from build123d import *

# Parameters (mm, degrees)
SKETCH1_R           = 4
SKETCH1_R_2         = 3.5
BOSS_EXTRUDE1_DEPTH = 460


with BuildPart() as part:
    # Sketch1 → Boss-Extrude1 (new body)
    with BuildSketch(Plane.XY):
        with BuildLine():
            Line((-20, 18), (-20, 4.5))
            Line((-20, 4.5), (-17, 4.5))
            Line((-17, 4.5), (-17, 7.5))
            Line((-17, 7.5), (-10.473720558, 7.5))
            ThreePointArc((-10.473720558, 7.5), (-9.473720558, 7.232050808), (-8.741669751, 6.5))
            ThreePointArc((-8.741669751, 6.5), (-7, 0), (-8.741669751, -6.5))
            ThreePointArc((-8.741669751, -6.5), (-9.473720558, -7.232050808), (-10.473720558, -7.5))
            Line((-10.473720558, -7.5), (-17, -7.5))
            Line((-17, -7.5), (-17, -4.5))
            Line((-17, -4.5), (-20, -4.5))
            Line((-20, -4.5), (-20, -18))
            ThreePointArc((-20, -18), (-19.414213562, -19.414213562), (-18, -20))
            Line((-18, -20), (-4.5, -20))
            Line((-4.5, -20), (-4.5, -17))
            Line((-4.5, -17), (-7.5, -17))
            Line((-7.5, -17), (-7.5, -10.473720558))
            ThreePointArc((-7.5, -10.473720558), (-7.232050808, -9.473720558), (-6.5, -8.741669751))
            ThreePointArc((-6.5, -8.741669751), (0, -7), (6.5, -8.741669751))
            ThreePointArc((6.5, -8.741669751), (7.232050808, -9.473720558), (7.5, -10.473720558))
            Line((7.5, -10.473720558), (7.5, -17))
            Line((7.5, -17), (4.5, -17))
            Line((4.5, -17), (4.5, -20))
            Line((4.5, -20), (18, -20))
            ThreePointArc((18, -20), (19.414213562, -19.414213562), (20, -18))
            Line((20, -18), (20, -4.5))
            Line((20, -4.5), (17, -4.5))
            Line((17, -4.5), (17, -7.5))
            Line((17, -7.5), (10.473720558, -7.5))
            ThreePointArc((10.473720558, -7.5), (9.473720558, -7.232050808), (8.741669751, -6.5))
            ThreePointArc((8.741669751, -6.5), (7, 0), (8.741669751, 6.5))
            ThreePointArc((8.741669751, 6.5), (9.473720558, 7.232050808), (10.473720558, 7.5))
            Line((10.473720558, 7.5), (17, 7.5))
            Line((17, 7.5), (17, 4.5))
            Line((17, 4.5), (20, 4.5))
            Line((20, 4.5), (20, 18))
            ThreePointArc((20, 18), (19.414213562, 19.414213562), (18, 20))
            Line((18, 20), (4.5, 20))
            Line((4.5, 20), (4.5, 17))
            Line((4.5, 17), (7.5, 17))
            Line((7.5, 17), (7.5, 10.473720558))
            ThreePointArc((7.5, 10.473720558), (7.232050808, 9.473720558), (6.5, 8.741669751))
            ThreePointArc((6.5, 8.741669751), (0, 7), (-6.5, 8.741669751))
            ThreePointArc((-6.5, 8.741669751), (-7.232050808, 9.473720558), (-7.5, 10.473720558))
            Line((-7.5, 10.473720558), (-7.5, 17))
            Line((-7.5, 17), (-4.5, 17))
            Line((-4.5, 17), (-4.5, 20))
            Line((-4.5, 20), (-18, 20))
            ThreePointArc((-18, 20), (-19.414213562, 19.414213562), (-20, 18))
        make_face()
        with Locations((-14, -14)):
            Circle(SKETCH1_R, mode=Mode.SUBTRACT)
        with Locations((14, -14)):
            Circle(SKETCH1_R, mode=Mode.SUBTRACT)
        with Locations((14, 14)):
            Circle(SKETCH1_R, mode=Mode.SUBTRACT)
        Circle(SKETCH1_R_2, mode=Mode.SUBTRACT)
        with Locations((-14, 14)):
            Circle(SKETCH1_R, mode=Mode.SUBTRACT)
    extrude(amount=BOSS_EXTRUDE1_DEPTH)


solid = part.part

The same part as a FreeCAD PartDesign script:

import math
import FreeCAD as App
import Part
import Sketcher
from FreeCAD import Vector
Q = App.Units.Quantity

doc = App.newDocument("Part")
body = doc.addObject("PartDesign::Body", "Body")

sketch1 = doc.addObject("Sketcher::SketchObject", "Sketch")
body.addObject(sketch1)
sketch1.AttachmentSupport = (doc.XY_Plane, [""])
sketch1.MapMode = "FlatFace"
sketch1.addGeometry(Part.LineSegment(Vector(-20, 18, 0), Vector(-20, 4.5, 0)), False)
sketch1.addGeometry(Part.LineSegment(Vector(-20, 4.5, 0), Vector(-17, 4.5, 0)), False)
sketch1.addGeometry(Part.LineSegment(Vector(-17, 4.5, 0), Vector(-17, 7.5, 0)), False)
sketch1.addGeometry(Part.LineSegment(Vector(-17, 7.5, 0), Vector(-10.5, 7.5, 0)), False)
sketch1.addGeometry(Part.ArcOfCircle(Part.Circle(Vector(-10.5, 5.5, 0), Vector(0, 0, 1), 2), math.radians(30), math.radians(90)), False)
sketch1.addGeometry(Part.ArcOfCircle(Part.Circle(Vector(-20, 0, 0), Vector(0, 0, 1), 13), math.radians(-30), math.radians(30)), False)
sketch1.addGeometry(Part.ArcOfCircle(Part.Circle(Vector(-10.5, -5.5, 0), Vector(0, 0, 1), 2), math.radians(-90), math.radians(-30)), False)
sketch1.addGeometry(Part.LineSegment(Vector(-10.5, -7.5, 0), Vector(-17, -7.5, 0)), False)
sketch1.addGeometry(Part.LineSegment(Vector(-17, -7.5, 0), Vector(-17, -4.5, 0)), False)
sketch1.addGeometry(Part.LineSegment(Vector(-17, -4.5, 0), Vector(-20, -4.5, 0)), False)
sketch1.addGeometry(Part.LineSegment(Vector(-20, -4.5, 0), Vector(-20, -18, 0)), False)
sketch1.addGeometry(Part.ArcOfCircle(Part.Circle(Vector(-18, -18, 0), Vector(0, 0, 1), 2), math.radians(-180), math.radians(-90)), False)
sketch1.addGeometry(Part.LineSegment(Vector(-18, -20, 0), Vector(-4.5, -20, 0)), False)
sketch1.addGeometry(Part.LineSegment(Vector(-4.5, -20, 0), Vector(-4.5, -17, 0)), False)
sketch1.addGeometry(Part.LineSegment(Vector(-4.5, -17, 0), Vector(-7.5, -17, 0)), False)
sketch1.addGeometry(Part.LineSegment(Vector(-7.5, -17, 0), Vector(-7.5, -10.5, 0)), False)
sketch1.addGeometry(Part.ArcOfCircle(Part.Circle(Vector(-5.5, -10.5, 0), Vector(0, 0, 1), 2), math.radians(120), math.radians(180)), False)
sketch1.addGeometry(Part.ArcOfCircle(Part.Circle(Vector(0, -20, 0), Vector(0, 0, 1), 13), math.radians(60), math.radians(120)), False)
sketch1.addGeometry(Part.ArcOfCircle(Part.Circle(Vector(5.5, -10.5, 0), Vector(0, 0, 1), 2), math.radians(0), math.radians(60)), False)
sketch1.addGeometry(Part.LineSegment(Vector(7.5, -10.5, 0), Vector(7.5, -17, 0)), False)
sketch1.addGeometry(Part.LineSegment(Vector(7.5, -17, 0), Vector(4.5, -17, 0)), False)
sketch1.addGeometry(Part.LineSegment(Vector(4.5, -17, 0), Vector(4.5, -20, 0)), False)
sketch1.addGeometry(Part.LineSegment(Vector(4.5, -20, 0), Vector(18, -20, 0)), False)
sketch1.addGeometry(Part.ArcOfCircle(Part.Circle(Vector(18, -18, 0), Vector(0, 0, 1), 2), math.radians(-90), math.radians(0)), False)
sketch1.addGeometry(Part.LineSegment(Vector(20, -18, 0), Vector(20, -4.5, 0)), False)
sketch1.addGeometry(Part.LineSegment(Vector(20, -4.5, 0), Vector(17, -4.5, 0)), False)
sketch1.addGeometry(Part.LineSegment(Vector(17, -4.5, 0), Vector(17, -7.5, 0)), False)
sketch1.addGeometry(Part.LineSegment(Vector(17, -7.5, 0), Vector(10.5, -7.5, 0)), False)
sketch1.addGeometry(Part.ArcOfCircle(Part.Circle(Vector(10.5, -5.5, 0), Vector(0, 0, 1), 2), math.radians(-150), math.radians(-90)), False)
sketch1.addGeometry(Part.ArcOfCircle(Part.Circle(Vector(20, 0, 0), Vector(0, 0, 1), 13), math.radians(150), math.radians(210)), False)
sketch1.addGeometry(Part.ArcOfCircle(Part.Circle(Vector(10.5, 5.5, 0), Vector(0, 0, 1), 2), math.radians(90), math.radians(150)), False)
sketch1.addGeometry(Part.LineSegment(Vector(10.5, 7.5, 0), Vector(17, 7.5, 0)), False)
sketch1.addGeometry(Part.LineSegment(Vector(17, 7.5, 0), Vector(17, 4.5, 0)), False)
sketch1.addGeometry(Part.LineSegment(Vector(17, 4.5, 0), Vector(20, 4.5, 0)), False)
sketch1.addGeometry(Part.LineSegment(Vector(20, 4.5, 0), Vector(20, 18, 0)), False)
sketch1.addGeometry(Part.ArcOfCircle(Part.Circle(Vector(18, 18, 0), Vector(0, 0, 1), 2), math.radians(0), math.radians(90)), False)
sketch1.addGeometry(Part.LineSegment(Vector(18, 20, 0), Vector(4.5, 20, 0)), False)
sketch1.addGeometry(Part.LineSegment(Vector(4.5, 20, 0), Vector(4.5, 17, 0)), False)
sketch1.addGeometry(Part.LineSegment(Vector(4.5, 17, 0), Vector(7.5, 17, 0)), False)
sketch1.addGeometry(Part.LineSegment(Vector(7.5, 17, 0), Vector(7.5, 10.5, 0)), False)
sketch1.addGeometry(Part.ArcOfCircle(Part.Circle(Vector(5.5, 10.5, 0), Vector(0, 0, 1), 2), math.radians(-60), math.radians(0)), False)
sketch1.addGeometry(Part.ArcOfCircle(Part.Circle(Vector(0, 20, 0), Vector(0, 0, 1), 13), math.radians(-120), math.radians(-60)), False)
sketch1.addGeometry(Part.ArcOfCircle(Part.Circle(Vector(-5.5, 10.5, 0), Vector(0, 0, 1), 2), math.radians(180), math.radians(240)), False)
sketch1.addGeometry(Part.LineSegment(Vector(-7.5, 10.5, 0), Vector(-7.5, 17, 0)), False)
sketch1.addGeometry(Part.LineSegment(Vector(-7.5, 17, 0), Vector(-4.5, 17, 0)), False)
sketch1.addGeometry(Part.LineSegment(Vector(-4.5, 17, 0), Vector(-4.5, 20, 0)), False)
sketch1.addGeometry(Part.LineSegment(Vector(-4.5, 20, 0), Vector(-18, 20, 0)), False)
sketch1.addGeometry(Part.ArcOfCircle(Part.Circle(Vector(-18, 18, 0), Vector(0, 0, 1), 2), math.radians(90), math.radians(180)), False)
sketch1.addGeometry(Part.Circle(Vector(-14, -14, 0), Vector(0, 0, 1), 4), False)
sketch1.addGeometry(Part.Circle(Vector(14, -14, 0), Vector(0, 0, 1), 4), False)
sketch1.addGeometry(Part.Circle(Vector(-14, 14, 0), Vector(0, 0, 1), 4), False)
sketch1.addGeometry(Part.Circle(Vector(0, 0, 0), Vector(0, 0, 1), 3.5), False)
sketch1.addGeometry(Part.Circle(Vector(14, 14, 0), Vector(0, 0, 1), 4), False)
sketch1.addConstraint(Sketcher.Constraint("Coincident", 0, 2, 1, 1))
sketch1.addConstraint(Sketcher.Constraint("Coincident", 1, 2, 2, 1))
sketch1.addConstraint(Sketcher.Constraint("Coincident", 2, 2, 3, 1))
sketch1.addConstraint(Sketcher.Constraint("Tangent", 3, 2, 4, 2))
sketch1.addConstraint(Sketcher.Constraint("Tangent", 4, 1, 5, 2))
sketch1.addConstraint(Sketcher.Constraint("Tangent", 5, 1, 6, 2))
sketch1.addConstraint(Sketcher.Constraint("Tangent", 6, 1, 7, 1))
sketch1.addConstraint(Sketcher.Constraint("Coincident", 7, 2, 8, 1))
sketch1.addConstraint(Sketcher.Constraint("Coincident", 8, 2, 9, 1))
sketch1.addConstraint(Sketcher.Constraint("Coincident", 9, 2, 10, 1))
sketch1.addConstraint(Sketcher.Constraint("Tangent", 10, 2, 11, 1))
sketch1.addConstraint(Sketcher.Constraint("Tangent", 11, 2, 12, 1))
sketch1.addConstraint(Sketcher.Constraint("Coincident", 12, 2, 13, 1))
sketch1.addConstraint(Sketcher.Constraint("Coincident", 13, 2, 14, 1))
sketch1.addConstraint(Sketcher.Constraint("Coincident", 14, 2, 15, 1))
sketch1.addConstraint(Sketcher.Constraint("Tangent", 15, 2, 16, 2))
sketch1.addConstraint(Sketcher.Constraint("Tangent", 16, 1, 17, 2))
sketch1.addConstraint(Sketcher.Constraint("Tangent", 17, 1, 18, 2))
sketch1.addConstraint(Sketcher.Constraint("Tangent", 18, 1, 19, 1))
sketch1.addConstraint(Sketcher.Constraint("Coincident", 19, 2, 20, 1))
sketch1.addConstraint(Sketcher.Constraint("Coincident", 20, 2, 21, 1))
sketch1.addConstraint(Sketcher.Constraint("Coincident", 21, 2, 22, 1))
sketch1.addConstraint(Sketcher.Constraint("Tangent", 22, 2, 23, 1))
sketch1.addConstraint(Sketcher.Constraint("Tangent", 23, 2, 24, 1))
sketch1.addConstraint(Sketcher.Constraint("Coincident", 24, 2, 25, 1))
sketch1.addConstraint(Sketcher.Constraint("Coincident", 25, 2, 26, 1))
sketch1.addConstraint(Sketcher.Constraint("Coincident", 26, 2, 27, 1))
sketch1.addConstraint(Sketcher.Constraint("Tangent", 27, 2, 28, 2))
sketch1.addConstraint(Sketcher.Constraint("Tangent", 28, 1, 29, 2))
sketch1.addConstraint(Sketcher.Constraint("Tangent", 29, 1, 30, 2))
sketch1.addConstraint(Sketcher.Constraint("Tangent", 30, 1, 31, 1))
sketch1.addConstraint(Sketcher.Constraint("Coincident", 31, 2, 32, 1))
sketch1.addConstraint(Sketcher.Constraint("Coincident", 32, 2, 33, 1))
sketch1.addConstraint(Sketcher.Constraint("Coincident", 33, 2, 34, 1))
sketch1.addConstraint(Sketcher.Constraint("Tangent", 34, 2, 35, 1))
sketch1.addConstraint(Sketcher.Constraint("Tangent", 35, 2, 36, 1))
sketch1.addConstraint(Sketcher.Constraint("Coincident", 36, 2, 37, 1))
sketch1.addConstraint(Sketcher.Constraint("Coincident", 37, 2, 38, 1))
sketch1.addConstraint(Sketcher.Constraint("Coincident", 38, 2, 39, 1))
sketch1.addConstraint(Sketcher.Constraint("Tangent", 39, 2, 40, 2))
sketch1.addConstraint(Sketcher.Constraint("Tangent", 40, 1, 41, 2))
sketch1.addConstraint(Sketcher.Constraint("Tangent", 41, 1, 42, 2))
sketch1.addConstraint(Sketcher.Constraint("Tangent", 42, 1, 43, 1))
sketch1.addConstraint(Sketcher.Constraint("Coincident", 43, 2, 44, 1))
sketch1.addConstraint(Sketcher.Constraint("Coincident", 44, 2, 45, 1))
sketch1.addConstraint(Sketcher.Constraint("Coincident", 45, 2, 46, 1))
sketch1.addConstraint(Sketcher.Constraint("Tangent", 46, 2, 47, 1))
sketch1.addConstraint(Sketcher.Constraint("Tangent", 47, 2, 0, 1))
sketch1.addConstraint(Sketcher.Constraint("Vertical", 0))
sketch1.addConstraint(Sketcher.Constraint("Horizontal", 1))
sketch1.addConstraint(Sketcher.Constraint("Vertical", 2))
sketch1.addConstraint(Sketcher.Constraint("Horizontal", 3))
sketch1.addConstraint(Sketcher.Constraint("Horizontal", 7))
sketch1.addConstraint(Sketcher.Constraint("Vertical", 8))
sketch1.addConstraint(Sketcher.Constraint("Horizontal", 9))
sketch1.addConstraint(Sketcher.Constraint("Vertical", 10))
sketch1.addConstraint(Sketcher.Constraint("Horizontal", 12))
sketch1.addConstraint(Sketcher.Constraint("Vertical", 13))
sketch1.addConstraint(Sketcher.Constraint("Horizontal", 14))
sketch1.addConstraint(Sketcher.Constraint("Vertical", 15))
sketch1.addConstraint(Sketcher.Constraint("Vertical", 19))
sketch1.addConstraint(Sketcher.Constraint("Horizontal", 20))
sketch1.addConstraint(Sketcher.Constraint("Vertical", 21))
sketch1.addConstraint(Sketcher.Constraint("Horizontal", 22))
sketch1.addConstraint(Sketcher.Constraint("Vertical", 24))
sketch1.addConstraint(Sketcher.Constraint("Horizontal", 25))
sketch1.addConstraint(Sketcher.Constraint("Vertical", 26))
sketch1.addConstraint(Sketcher.Constraint("Horizontal", 27))
sketch1.addConstraint(Sketcher.Constraint("Horizontal", 31))
sketch1.addConstraint(Sketcher.Constraint("Vertical", 32))
sketch1.addConstraint(Sketcher.Constraint("Horizontal", 33))
sketch1.addConstraint(Sketcher.Constraint("Vertical", 34))
sketch1.addConstraint(Sketcher.Constraint("Horizontal", 36))
sketch1.addConstraint(Sketcher.Constraint("Vertical", 37))
sketch1.addConstraint(Sketcher.Constraint("Horizontal", 38))
sketch1.addConstraint(Sketcher.Constraint("Vertical", 39))
sketch1.addConstraint(Sketcher.Constraint("Vertical", 43))
sketch1.addConstraint(Sketcher.Constraint("Horizontal", 44))
sketch1.addConstraint(Sketcher.Constraint("Vertical", 45))
sketch1.addConstraint(Sketcher.Constraint("Horizontal", 46))
sketch1.addConstraint(Sketcher.Constraint("Coincident", 51, 3, -1, 1))
sketch1.addConstraint(Sketcher.Constraint("Equal", 4, 6))
sketch1.addConstraint(Sketcher.Constraint("Equal", 6, 11))
sketch1.addConstraint(Sketcher.Constraint("Equal", 11, 16))
sketch1.addConstraint(Sketcher.Constraint("Equal", 5, 17))
sketch1.addConstraint(Sketcher.Constraint("Equal", 16, 18))
sketch1.addConstraint(Sketcher.Constraint("Equal", 18, 23))
sketch1.addConstraint(Sketcher.Constraint("Equal", 23, 28))
sketch1.addConstraint(Sketcher.Constraint("Equal", 17, 29))
sketch1.addConstraint(Sketcher.Constraint("Equal", 28, 30))
sketch1.addConstraint(Sketcher.Constraint("Equal", 30, 35))
sketch1.addConstraint(Sketcher.Constraint("Equal", 35, 40))
sketch1.addConstraint(Sketcher.Constraint("Equal", 29, 41))
sketch1.addConstraint(Sketcher.Constraint("Equal", 40, 42))
sketch1.addConstraint(Sketcher.Constraint("Equal", 42, 47))
sketch1.addConstraint(Sketcher.Constraint("Equal", 48, 49))
sketch1.addConstraint(Sketcher.Constraint("Equal", 49, 50))
sketch1.addConstraint(Sketcher.Constraint("Equal", 50, 52))
sketch1.addConstraint(Sketcher.Constraint("Symmetric", 4, 3, 28, 3, -1, 1))
sketch1.addConstraint(Sketcher.Constraint("Symmetric", 6, 3, 30, 3, -1, 1))
sketch1.addConstraint(Sketcher.Constraint("Symmetric", 11, 3, 35, 3, -1, 1))
sketch1.addConstraint(Sketcher.Constraint("Symmetric", 16, 3, 40, 3, -1, 1))
sketch1.addConstraint(Sketcher.Constraint("Symmetric", 18, 3, 42, 3, -1, 1))
sketch1.addConstraint(Sketcher.Constraint("Symmetric", 23, 3, 47, 3, -1, 1))
sketch1.addConstraint(Sketcher.Constraint("Symmetric", 49, 3, 50, 3, -1, 1))
sketch1.addConstraint(Sketcher.Constraint("Symmetric", 48, 3, 52, 3, -1, 1))
sketch1.addConstraint(Sketcher.Constraint("Symmetric", 1, 2, 25, 2, -1, 1))
sketch1.addConstraint(Sketcher.Constraint("Symmetric", 8, 2, 32, 2, -1, 1))
sketch1.addConstraint(Sketcher.Constraint("Symmetric", 13, 2, 37, 2, -1, 1))
sketch1.addConstraint(Sketcher.Constraint("Symmetric", 20, 2, 44, 2, -1, 1))
sketch1.addConstraint(Sketcher.Constraint("Symmetric", 16, 3, 18, 3, -2))
sketch1.addConstraint(Sketcher.Constraint("Symmetric", 11, 3, 23, 3, -2))
sketch1.addConstraint(Sketcher.Constraint("Symmetric", 6, 3, 28, 3, -2))
sketch1.addConstraint(Sketcher.Constraint("Symmetric", 48, 3, 49, 3, -2))
sketch1.addConstraint(Sketcher.Constraint("Symmetric", 13, 2, 20, 2, -2))
sketch1.addConstraint(Sketcher.Constraint("Symmetric", 8, 2, 25, 2, -2))
sketch1.addConstraint(Sketcher.Constraint("Horizontal", 17, 3, 11, 2))
sketch1.addConstraint(Sketcher.Constraint("Vertical", 5, 3, 0, 2))
sketch1.addConstraint(Sketcher.Constraint("Equal", 9, 14))
sketch1.addConstraint(Sketcher.Constraint("Equal", 46, 0))
sketch1.addConstraint(Sketcher.Constraint("Equal", 44, 2))
sketch1.addConstraint(Sketcher.Constraint("Equal", 8, 13))
sketch1.addConstraint(Sketcher.Constraint("Equal", 31, 15))
sketch1.addConstraint(Sketcher.Constraint("Diameter", 48, Q("8 mm")))
sketch1.addConstraint(Sketcher.Constraint("Diameter", 51, Q("7 mm")))
sketch1.addConstraint(Sketcher.Constraint("Radius", 4, Q("2 mm")))
sketch1.addConstraint(Sketcher.Constraint("Radius", 5, Q("13 mm")))
sketch1.addConstraint(Sketcher.Constraint("DistanceX", 1, 1, 1, 2, Q("3 mm")))
sketch1.addConstraint(Sketcher.Constraint("DistanceX", 12, 1, 12, 2, Q("13.5 mm")))
sketch1.addConstraint(Sketcher.Constraint("DistanceX", 5, 3, -1, 1, Q("20 mm")))
sketch1.addConstraint(Sketcher.Constraint("DistanceX", 48, 3, -1, 1, Q("14 mm")))
sketch1.addConstraint(Sketcher.Constraint("DistanceY", 48, 3, -1, 1, Q("14 mm")))
pad1 = doc.addObject("PartDesign::Pad", "Pad")
body.addObject(pad1)
pad1.Profile = sketch1
pad1.Length = 460

doc.recompute()
